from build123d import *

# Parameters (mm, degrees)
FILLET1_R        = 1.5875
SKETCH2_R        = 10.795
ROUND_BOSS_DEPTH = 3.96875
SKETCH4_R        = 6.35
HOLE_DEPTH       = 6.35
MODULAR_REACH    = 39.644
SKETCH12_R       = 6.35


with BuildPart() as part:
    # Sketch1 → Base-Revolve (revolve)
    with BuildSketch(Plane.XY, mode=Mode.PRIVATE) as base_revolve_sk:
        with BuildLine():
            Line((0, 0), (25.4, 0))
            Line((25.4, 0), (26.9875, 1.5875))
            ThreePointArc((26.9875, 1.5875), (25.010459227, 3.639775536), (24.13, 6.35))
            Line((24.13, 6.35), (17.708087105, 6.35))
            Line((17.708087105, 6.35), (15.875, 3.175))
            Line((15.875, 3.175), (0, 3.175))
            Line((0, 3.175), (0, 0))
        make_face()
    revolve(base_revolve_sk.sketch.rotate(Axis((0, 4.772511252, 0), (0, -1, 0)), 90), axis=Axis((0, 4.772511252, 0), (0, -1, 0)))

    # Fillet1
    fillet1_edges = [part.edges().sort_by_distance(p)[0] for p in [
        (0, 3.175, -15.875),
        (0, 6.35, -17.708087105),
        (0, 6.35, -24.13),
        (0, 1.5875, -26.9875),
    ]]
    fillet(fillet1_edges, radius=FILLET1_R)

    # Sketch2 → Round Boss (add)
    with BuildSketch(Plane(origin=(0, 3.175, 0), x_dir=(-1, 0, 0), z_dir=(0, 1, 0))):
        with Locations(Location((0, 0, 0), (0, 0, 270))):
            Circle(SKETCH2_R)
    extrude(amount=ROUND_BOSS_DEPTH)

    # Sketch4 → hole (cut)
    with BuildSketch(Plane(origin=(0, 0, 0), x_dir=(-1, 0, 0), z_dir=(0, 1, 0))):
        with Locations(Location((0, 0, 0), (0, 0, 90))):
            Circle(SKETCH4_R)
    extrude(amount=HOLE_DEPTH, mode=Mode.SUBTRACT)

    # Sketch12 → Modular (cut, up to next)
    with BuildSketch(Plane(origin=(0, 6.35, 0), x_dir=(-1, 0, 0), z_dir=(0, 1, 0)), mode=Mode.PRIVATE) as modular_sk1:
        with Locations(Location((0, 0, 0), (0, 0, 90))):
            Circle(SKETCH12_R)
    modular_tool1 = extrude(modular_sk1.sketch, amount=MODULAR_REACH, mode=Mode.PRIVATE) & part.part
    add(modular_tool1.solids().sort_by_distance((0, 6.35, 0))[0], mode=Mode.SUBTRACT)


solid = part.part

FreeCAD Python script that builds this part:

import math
import FreeCAD as App
import Part
import Sketcher

V = App.Vector
Q = App.Units.Quantity


def edges_at(feature, points):
    """Names of the edges that pass closest to the given points."""
    edges = feature.Shape.Edges
    near = lambda p: min(range(len(edges)), key=lambda i: edges[i].distToShape(Part.Vertex(*p))[0])
    return sorted({f"Edge{near(p) + 1}" for p in points})

doc = App.newDocument("Part")
body = doc.addObject("PartDesign::Body", "Body")

# Sketch on XY plane
sketch1 = body.newObject("Sketcher::SketchObject", "Sketch")
sketch1.AttachmentSupport = (doc.getObject("XY_Plane"), [""])
sketch1.MapMode = "FlatFace"
sketch1.addGeometry(Part.LineSegment(V(0, 0, 0), V(25.4, 0, 0)), False)
sketch1.addGeometry(Part.LineSegment(V(25.4, 0, 0), V(27, 1.6, 0)), False)
sketch1.addGeometry(Part.ArcOfCircle(Part.Circle(V(30.5, 6.9, 0), V(0, 0, 1), 6.4), math.radians(-175), math.radians(-123)), False)
sketch1.addGeometry(Part.LineSegment(V(24.1, 6.3, 0), V(17.7, 6.3, 0)), False)
sketch1.addGeometry(Part.LineSegment(V(17.7, 6.3, 0), V(15.9, 3.2, 0)), False)
sketch1.addGeometry(Part.LineSegment(V(15.9, 3.2, 0), V(0, 3.2, 0)), False)
sketch1.addGeometry(Part.LineSegment(V(0, 3.2, 0), V(0, 0, 0)), False)
sketch1.addConstraint(Sketcher.Constraint("Coincident", 0, 2, 1, 1))
sketch1.addConstraint(Sketcher.Constraint("Coincident", 1, 2, 2, 2))
sketch1.addConstraint(Sketcher.Constraint("Coincident", 2, 1, 3, 1))
sketch1.addConstraint(Sketcher.Constraint("Coincident", 3, 2, 4, 1))
sketch1.addConstraint(Sketcher.Constraint("Coincident", 4, 2, 5, 1))
sketch1.addConstraint(Sketcher.Constraint("Coincident", 5, 2, 6, 1))
sketch1.addConstraint(Sketcher.Constraint("Coincident", 6, 2, 0, 1))
sketch1.addConstraint(Sketcher.Constraint("Horizontal", 0))
sketch1.addConstraint(Sketcher.Constraint("Horizontal", 3))
sketch1.addConstraint(Sketcher.Constraint("Horizontal", 5))
sketch1.addConstraint(Sketcher.Constraint("Vertical", 6))
sketch1.addConstraint(Sketcher.Constraint("Coincident", 6, 2, -1, 1))
sketch1.addConstraint(Sketcher.Constraint("DistanceX", 0, 1, 0, 2, Q("1 in")))
sketch1.addConstraint(Sketcher.Constraint("Radius", 2, Q("0.25 in")))
sketch1.addConstraint(Sketcher.Constraint("Angle", 1, Q("45 deg")))
sketch1.addConstraint(Sketcher.Constraint("Angle", 4, Q("-120 deg")))
sketch1.addConstraint(Sketcher.Constraint("DistanceX", 5, 2, 5, 1, Q("0.625 in")))
sketch1.addConstraint(Sketcher.Constraint("DistanceY", 6, 2, 6, 1, Q("0.125 in")))
sketch1.addConstraint(Sketcher.Constraint("DistanceX", -1, 1, 2, 1, Q("0.95 in")))
sketch1.addConstraint(Sketcher.Constraint("DistanceY", -1, 1, 2, 1, Q("0.25 in")))
sketch1.addConstraint(Sketcher.Constraint("DistanceX", -1, 1, 1, 2, Q("1.0625 in")))
revolution = body.newObject("PartDesign::Revolution", "Revolution")
revolution.Profile = sketch1
revolution.ReferenceAxis = (sketch1, ["V_Axis"])
revolution.Angle = 360
doc.recompute()

fillet = body.newObject("PartDesign::Fillet", "Fillet")
fillet.Base = (revolution, edges_at(revolution, [
    (0, 3.175, -15.875),
    (0, 6.35, -17.708),
    (0, 6.35, -24.13),
    (0, 1.587, -26.988),
]))
fillet.Radius = Q("0.0625 in")

# Sketch on XZ plane
sketch2 = body.newObject("Sketcher::SketchObject", "Sketch001")
sketch2.AttachmentSupport = (doc.getObject("XZ_Plane"), [""])
sketch2.MapMode = "FlatFace"
sketch2.AttachmentOffset = App.Placement(V(0, 0, -0.125 * 25.4), App.Rotation())
sketch2.addGeometry(Part.Circle(V(0, 0, 0), V(0, 0, 1), 11), False)
sketch2.addConstraint(Sketcher.Constraint("Coincident", 0, 3, -1, 1))
sketch2.addConstraint(Sketcher.Constraint("Diameter", 0, Q("0.85 in")))
pad1 = body.newObject("PartDesign::Pad", "Pad")
pad1.Profile = sketch2
pad1.Length = Q("0.15625 in")
pad1.Reversed = True

# Sketch on XZ plane
sketch3 = body.newObject("Sketcher::SketchObject", "Sketch002")
sketch3.AttachmentSupport = (doc.getObject("XZ_Plane"), [""])
sketch3.MapMode = "FlatFace"
sketch3.addGeometry(Part.Circle(V(0, 0, 0), V(0, 0, 1), 6), False)
sketch3.addConstraint(Sketcher.Constraint("Coincident", 0, 3, -1, 1))
sketch3.addConstraint(Sketcher.Constraint("Diameter", 0, Q("0.5 in")))
pocket1 = body.newObject("PartDesign::Pocket", "Pocket")
pocket1.Profile = sketch3
pocket1.Length = Q("0.25 in")

# Sketch on XZ plane
sketch4 = body.newObject("Sketcher::SketchObject", "Sketch003")
sketch4.AttachmentSupport = (doc.getObject("XZ_Plane"), [""])
sketch4.MapMode = "FlatFace"
sketch4.AttachmentOffset = App.Placement(V(0, 0, -0.25 * 25.4), App.Rotation())
sketch4.addGeometry(Part.Circle(V(0, 0, 0), V(0, 0, 1), 6), False)
sketch4.addConstraint(Sketcher.Constraint("Coincident", 0, 3, -1, 1))
sketch4.addConstraint(Sketcher.Constraint("Diameter", 0, Q("0.5 in")))
pocket2 = body.newObject("PartDesign::Pocket", "Pocket001")
pocket2.Profile = sketch4
pocket2.Type = "UpToFirst"

doc.recompute()
